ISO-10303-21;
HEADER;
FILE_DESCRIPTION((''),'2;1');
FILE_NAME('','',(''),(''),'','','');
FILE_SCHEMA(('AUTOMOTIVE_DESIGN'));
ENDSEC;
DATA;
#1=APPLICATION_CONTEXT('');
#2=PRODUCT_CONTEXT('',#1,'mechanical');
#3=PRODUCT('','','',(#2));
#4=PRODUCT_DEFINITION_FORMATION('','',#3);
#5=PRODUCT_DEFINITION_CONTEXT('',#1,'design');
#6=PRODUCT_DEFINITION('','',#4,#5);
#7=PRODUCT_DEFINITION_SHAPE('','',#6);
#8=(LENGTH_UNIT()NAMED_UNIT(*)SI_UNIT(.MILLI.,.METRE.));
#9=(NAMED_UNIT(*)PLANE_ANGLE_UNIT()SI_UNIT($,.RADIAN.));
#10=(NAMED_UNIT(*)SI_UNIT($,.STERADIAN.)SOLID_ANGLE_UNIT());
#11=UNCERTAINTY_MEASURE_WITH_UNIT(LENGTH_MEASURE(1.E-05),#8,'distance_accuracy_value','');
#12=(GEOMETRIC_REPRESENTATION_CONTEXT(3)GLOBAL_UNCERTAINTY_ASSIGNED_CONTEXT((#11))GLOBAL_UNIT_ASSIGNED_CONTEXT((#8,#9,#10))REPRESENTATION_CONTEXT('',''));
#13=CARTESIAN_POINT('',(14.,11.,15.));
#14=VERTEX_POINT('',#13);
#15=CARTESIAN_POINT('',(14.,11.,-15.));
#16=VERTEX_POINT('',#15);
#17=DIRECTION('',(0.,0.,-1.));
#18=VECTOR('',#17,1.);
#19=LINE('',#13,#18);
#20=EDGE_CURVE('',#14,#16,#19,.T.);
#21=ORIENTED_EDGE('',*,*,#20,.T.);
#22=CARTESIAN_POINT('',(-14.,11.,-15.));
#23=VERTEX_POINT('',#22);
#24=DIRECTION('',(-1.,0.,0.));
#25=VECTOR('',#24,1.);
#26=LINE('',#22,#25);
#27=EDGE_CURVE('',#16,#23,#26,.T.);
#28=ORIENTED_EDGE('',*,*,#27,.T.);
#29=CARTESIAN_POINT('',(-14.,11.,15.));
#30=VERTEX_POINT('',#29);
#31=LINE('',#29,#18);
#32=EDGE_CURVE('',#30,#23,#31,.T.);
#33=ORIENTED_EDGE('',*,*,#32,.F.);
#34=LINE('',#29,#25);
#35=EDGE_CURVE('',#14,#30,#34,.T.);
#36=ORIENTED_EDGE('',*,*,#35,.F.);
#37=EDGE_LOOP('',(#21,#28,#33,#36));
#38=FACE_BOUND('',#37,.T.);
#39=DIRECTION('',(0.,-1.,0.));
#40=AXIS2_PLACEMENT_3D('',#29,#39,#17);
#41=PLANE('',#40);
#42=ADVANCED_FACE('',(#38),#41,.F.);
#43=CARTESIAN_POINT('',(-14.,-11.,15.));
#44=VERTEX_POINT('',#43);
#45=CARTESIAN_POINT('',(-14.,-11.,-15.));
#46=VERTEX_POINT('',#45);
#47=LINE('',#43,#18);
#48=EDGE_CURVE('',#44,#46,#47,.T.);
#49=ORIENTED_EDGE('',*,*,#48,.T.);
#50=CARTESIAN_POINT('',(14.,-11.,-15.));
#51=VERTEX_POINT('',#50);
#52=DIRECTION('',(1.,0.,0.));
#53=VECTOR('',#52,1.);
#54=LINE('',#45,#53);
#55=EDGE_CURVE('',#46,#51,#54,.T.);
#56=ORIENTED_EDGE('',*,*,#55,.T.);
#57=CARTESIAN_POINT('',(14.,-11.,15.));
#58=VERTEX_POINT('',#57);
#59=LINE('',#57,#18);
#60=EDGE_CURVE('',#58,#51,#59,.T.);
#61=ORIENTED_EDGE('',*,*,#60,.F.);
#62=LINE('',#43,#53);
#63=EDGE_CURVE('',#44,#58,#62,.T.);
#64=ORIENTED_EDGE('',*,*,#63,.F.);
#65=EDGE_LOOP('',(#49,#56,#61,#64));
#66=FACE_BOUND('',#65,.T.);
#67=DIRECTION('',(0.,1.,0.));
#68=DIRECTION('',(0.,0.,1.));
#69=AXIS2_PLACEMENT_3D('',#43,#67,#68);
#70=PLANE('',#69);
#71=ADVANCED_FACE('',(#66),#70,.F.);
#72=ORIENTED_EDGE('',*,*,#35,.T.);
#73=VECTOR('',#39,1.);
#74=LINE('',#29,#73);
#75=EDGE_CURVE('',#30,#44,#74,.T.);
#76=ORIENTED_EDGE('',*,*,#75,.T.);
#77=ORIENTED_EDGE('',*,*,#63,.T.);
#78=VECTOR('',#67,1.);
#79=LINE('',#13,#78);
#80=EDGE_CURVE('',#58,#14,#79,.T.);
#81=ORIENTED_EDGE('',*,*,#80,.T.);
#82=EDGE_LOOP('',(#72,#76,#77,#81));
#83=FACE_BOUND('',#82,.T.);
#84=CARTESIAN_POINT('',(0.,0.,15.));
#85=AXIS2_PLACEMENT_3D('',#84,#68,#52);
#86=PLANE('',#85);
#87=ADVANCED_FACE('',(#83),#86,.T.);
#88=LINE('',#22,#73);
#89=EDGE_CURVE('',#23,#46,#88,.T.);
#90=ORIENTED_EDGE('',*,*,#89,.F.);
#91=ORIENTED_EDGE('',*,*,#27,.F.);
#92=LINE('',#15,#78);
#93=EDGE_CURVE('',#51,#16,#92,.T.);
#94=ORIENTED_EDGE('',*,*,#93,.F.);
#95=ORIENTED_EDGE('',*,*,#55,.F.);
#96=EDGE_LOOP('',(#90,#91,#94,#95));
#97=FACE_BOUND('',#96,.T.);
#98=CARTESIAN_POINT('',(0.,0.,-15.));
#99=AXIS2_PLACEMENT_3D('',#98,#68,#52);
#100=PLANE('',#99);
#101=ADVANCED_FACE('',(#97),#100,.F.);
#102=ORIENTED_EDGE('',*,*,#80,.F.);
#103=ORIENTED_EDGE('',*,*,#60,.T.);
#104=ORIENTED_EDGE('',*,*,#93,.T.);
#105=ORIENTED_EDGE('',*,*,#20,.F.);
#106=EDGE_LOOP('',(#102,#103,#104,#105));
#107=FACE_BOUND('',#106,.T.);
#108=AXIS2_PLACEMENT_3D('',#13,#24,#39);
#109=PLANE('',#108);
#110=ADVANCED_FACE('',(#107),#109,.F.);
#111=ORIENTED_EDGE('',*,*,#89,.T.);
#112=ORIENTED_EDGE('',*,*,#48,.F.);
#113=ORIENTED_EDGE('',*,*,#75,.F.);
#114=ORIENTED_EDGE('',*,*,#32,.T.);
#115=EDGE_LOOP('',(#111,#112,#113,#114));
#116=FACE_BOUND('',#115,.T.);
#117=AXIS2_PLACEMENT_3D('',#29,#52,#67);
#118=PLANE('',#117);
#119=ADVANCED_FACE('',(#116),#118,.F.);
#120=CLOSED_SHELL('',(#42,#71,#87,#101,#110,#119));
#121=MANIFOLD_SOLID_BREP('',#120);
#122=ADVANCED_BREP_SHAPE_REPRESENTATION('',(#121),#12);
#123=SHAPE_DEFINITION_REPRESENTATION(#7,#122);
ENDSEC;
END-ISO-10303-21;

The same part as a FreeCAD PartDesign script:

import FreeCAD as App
import Part
import Sketcher
from FreeCAD import Vector


def add_polygon(sketch, points):
    """Adds a closed chain of lines whose ends are joined by coincident constraints."""
    first, n = sketch.GeometryCount, len(points)
    for a, b in zip(points, points[1:] + points[:1]):
        sketch.addGeometry(Part.LineSegment(App.Vector(*a, 0), App.Vector(*b, 0)), False)
    for i in range(n):
        sketch.addConstraint(Sketcher.Constraint("Coincident", first + i, 2, first + (i + 1) % n, 1))

doc = App.newDocument("Part")
params = doc.addObject("Spreadsheet::Sheet", "Params")
for row, (alias, value) in enumerate([
    ("sketch1_width", "28 mm"),
    ("sketch1_height", "22 mm"),
    ("pad1_length", "30 mm"),
], start=1):
    params.set(f"A{row}", alias)
    params.set(f"B{row}", "=" + value)
    params.setAlias(f"B{row}", alias)

body = doc.addObject("PartDesign::Body", "Body")

# Sketch on XY plane
sketch1 = doc.addObject("Sketcher::SketchObject", "Sketch")
body.addObject(sketch1)
sketch1.AttachmentSupport = (doc.XY_Plane, [""])
sketch1.MapMode = "FlatFace"
add_polygon(sketch1, [(-14, 11), (-14, -11), (14, -11), (14, 11)])  # lines 0-3
sketch1.addConstraint([
    Sketcher.Constraint("Vertical", 0),
    Sketcher.Constraint("Horizontal", 1),
    Sketcher.Constraint("Vertical", 2),
    Sketcher.Constraint("Horizontal", 3),
    Sketcher.Constraint("Symmetric", 0, 2, 2, 2, -1, 1),
    Sketcher.Constraint("DistanceX", 1, 1, 1, 2, 28.0),
    Sketcher.Constraint("DistanceY", 0, 2, 0, 1, 22.0),
])
sketch1.setExpression("Constraints[9]", "Params.sketch1_width")
sketch1.setExpression("Constraints[10]", "Params.sketch1_height")
pad1 = doc.addObject("PartDesign::Pad", "Pad")
body.addObject(pad1)
pad1.Profile = sketch1
pad1.setExpression("Length", "Params.pad1_length")
pad1.Midplane = True

doc.recompute()
